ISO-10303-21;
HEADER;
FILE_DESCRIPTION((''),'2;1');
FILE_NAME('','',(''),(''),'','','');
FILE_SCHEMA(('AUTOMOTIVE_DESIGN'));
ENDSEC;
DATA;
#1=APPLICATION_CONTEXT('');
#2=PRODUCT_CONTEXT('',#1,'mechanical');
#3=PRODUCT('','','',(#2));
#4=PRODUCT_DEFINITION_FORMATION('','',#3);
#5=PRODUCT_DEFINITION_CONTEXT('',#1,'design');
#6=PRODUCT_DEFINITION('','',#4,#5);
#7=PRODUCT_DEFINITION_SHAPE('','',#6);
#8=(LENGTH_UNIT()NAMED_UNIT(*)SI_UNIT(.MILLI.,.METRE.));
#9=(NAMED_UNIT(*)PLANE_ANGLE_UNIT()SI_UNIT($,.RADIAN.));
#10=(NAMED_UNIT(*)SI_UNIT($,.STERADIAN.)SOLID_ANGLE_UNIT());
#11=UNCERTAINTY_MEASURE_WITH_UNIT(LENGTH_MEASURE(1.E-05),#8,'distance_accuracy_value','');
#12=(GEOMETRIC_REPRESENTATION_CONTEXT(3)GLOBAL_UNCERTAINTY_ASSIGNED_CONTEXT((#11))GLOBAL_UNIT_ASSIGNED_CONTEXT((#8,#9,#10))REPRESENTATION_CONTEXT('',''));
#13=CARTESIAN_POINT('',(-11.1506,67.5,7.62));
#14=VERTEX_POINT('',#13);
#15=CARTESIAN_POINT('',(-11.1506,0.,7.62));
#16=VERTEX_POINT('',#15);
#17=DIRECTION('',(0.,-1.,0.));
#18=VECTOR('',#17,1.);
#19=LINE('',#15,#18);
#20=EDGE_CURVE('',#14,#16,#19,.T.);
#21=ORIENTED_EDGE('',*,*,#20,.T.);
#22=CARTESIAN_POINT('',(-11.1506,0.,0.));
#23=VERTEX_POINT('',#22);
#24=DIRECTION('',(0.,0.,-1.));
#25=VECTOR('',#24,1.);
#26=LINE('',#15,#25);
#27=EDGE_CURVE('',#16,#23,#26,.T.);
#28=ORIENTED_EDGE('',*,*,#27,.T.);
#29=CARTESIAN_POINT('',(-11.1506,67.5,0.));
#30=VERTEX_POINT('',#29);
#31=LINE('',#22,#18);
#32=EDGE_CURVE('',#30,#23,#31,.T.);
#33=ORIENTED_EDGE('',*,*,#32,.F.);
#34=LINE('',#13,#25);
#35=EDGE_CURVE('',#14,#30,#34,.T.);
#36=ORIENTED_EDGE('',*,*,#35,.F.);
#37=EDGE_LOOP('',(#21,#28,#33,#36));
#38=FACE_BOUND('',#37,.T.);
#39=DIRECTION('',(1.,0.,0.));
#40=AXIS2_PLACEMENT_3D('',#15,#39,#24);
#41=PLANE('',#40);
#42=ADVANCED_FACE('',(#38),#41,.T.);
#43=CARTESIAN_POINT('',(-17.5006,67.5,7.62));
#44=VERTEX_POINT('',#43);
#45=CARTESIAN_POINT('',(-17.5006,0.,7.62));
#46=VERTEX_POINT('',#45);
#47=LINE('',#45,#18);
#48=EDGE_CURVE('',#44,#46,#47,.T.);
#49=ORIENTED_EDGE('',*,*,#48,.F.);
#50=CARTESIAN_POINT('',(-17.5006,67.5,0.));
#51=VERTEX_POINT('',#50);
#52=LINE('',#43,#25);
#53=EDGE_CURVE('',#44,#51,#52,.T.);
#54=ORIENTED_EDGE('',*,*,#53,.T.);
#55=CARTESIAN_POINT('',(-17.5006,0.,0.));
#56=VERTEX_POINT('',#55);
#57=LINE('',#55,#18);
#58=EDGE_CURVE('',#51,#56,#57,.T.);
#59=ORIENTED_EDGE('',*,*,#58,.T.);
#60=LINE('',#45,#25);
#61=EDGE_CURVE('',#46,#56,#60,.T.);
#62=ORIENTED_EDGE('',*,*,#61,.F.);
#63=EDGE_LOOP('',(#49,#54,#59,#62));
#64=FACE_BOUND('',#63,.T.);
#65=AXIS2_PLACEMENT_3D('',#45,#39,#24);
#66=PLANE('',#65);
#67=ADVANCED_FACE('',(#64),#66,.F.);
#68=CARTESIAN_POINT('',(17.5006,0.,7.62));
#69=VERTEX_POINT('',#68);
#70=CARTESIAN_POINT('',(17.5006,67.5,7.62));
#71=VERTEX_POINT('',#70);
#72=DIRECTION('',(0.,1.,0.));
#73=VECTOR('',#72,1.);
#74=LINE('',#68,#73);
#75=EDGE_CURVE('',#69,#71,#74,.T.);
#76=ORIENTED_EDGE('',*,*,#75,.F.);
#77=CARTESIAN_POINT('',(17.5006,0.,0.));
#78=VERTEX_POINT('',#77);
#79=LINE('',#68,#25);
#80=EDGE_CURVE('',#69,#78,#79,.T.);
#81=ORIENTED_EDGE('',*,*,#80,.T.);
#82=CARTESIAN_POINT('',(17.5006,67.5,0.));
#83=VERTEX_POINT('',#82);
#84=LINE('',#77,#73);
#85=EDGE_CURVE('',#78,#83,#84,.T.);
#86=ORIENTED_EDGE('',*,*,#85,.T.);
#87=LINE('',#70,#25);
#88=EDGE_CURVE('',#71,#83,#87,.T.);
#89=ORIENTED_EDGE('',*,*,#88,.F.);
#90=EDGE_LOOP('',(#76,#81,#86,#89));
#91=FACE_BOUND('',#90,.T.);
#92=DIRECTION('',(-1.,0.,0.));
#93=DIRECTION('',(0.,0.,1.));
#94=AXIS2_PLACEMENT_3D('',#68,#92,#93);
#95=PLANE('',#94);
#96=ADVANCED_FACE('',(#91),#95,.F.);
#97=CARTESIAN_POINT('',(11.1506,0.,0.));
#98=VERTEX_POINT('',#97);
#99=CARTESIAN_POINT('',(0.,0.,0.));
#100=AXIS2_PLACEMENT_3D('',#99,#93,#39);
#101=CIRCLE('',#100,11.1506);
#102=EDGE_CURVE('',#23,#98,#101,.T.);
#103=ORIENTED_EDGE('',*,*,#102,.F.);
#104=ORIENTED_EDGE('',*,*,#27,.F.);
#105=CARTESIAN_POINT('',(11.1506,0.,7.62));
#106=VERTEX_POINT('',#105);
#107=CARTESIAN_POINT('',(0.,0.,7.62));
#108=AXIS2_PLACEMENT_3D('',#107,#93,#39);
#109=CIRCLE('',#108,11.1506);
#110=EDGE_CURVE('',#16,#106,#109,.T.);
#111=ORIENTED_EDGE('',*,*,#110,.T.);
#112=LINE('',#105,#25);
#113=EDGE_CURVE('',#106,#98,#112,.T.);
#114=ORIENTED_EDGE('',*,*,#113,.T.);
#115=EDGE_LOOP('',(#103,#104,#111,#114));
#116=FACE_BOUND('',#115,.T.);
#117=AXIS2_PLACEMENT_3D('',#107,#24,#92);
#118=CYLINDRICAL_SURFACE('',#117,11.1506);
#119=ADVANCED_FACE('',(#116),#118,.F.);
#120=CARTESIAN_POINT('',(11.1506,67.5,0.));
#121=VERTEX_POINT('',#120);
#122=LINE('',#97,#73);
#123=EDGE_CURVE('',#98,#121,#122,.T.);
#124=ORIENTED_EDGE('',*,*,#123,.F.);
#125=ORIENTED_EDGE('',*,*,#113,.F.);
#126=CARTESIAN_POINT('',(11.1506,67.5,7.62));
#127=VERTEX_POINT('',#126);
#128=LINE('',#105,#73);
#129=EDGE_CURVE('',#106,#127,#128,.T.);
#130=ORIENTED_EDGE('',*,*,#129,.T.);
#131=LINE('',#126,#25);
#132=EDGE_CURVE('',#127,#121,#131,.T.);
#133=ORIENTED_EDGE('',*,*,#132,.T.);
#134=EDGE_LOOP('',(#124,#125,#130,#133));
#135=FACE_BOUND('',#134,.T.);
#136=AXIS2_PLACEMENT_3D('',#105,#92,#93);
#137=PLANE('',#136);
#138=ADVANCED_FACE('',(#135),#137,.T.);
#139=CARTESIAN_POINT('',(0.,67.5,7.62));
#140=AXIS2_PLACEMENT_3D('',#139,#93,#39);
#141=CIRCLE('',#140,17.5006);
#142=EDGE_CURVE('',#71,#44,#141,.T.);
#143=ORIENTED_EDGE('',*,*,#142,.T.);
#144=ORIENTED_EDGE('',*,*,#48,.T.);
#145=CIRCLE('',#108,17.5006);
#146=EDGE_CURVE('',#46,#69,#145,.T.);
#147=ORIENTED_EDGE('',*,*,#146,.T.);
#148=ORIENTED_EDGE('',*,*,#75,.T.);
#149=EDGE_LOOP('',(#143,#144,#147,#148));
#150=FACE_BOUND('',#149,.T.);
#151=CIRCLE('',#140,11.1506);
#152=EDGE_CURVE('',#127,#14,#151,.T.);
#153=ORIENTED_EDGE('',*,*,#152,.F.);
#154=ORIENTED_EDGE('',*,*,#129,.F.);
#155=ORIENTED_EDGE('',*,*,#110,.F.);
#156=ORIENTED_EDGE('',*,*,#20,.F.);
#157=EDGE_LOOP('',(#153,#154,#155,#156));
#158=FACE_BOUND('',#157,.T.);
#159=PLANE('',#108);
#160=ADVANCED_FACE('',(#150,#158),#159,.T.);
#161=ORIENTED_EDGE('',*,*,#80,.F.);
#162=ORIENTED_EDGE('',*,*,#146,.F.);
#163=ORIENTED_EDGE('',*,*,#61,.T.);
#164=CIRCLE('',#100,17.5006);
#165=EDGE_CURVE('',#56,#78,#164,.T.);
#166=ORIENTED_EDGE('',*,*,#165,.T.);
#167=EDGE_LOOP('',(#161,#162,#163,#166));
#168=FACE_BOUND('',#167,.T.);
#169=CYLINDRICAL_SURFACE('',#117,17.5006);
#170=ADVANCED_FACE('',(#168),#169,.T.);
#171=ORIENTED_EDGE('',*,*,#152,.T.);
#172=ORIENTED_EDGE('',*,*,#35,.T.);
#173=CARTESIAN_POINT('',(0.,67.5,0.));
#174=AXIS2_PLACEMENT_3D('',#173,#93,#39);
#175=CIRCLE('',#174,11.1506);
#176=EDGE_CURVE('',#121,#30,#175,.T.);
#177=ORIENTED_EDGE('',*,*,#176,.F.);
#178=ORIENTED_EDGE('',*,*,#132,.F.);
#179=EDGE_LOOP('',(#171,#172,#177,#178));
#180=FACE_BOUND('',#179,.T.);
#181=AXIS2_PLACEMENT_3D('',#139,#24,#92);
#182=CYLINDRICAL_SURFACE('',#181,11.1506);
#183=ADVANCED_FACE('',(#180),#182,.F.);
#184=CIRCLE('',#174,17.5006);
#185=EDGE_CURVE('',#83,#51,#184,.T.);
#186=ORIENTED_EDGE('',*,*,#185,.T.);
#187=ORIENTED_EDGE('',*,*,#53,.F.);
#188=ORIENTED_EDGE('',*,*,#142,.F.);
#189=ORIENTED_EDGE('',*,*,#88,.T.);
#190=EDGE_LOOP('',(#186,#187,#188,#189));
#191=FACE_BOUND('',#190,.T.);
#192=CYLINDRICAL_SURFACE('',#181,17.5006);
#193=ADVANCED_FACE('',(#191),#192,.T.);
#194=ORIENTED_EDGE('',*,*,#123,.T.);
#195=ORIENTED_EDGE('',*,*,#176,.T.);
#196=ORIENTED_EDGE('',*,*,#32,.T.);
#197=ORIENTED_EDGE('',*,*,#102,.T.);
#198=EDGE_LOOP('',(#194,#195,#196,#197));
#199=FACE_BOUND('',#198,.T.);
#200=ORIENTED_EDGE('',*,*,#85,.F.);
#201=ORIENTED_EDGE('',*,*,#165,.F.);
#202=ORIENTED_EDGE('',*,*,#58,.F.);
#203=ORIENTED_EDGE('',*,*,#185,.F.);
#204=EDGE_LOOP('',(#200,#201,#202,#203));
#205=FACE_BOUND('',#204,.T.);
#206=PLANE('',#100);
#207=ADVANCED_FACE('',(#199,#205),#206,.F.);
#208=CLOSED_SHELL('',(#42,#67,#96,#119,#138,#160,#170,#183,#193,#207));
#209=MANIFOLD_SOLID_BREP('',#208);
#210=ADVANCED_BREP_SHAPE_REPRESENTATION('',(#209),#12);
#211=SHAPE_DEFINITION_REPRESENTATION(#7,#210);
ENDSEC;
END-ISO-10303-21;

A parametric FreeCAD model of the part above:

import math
import FreeCAD as App
import Part
import Sketcher
from FreeCAD import Vector
Q = App.Units.Quantity

doc = App.newDocument("Part")
body = doc.addObject("PartDesign::Body", "Body")

# Sketch on XY plane
sketch1 = doc.addObject("Sketcher::SketchObject", "Sketch")
body.addObject(sketch1)
sketch1.AttachmentSupport = (doc.XY_Plane, [""])
sketch1.MapMode = "FlatFace"
sketch1.addGeometry(Part.LineSegment(Vector(-18, 68, 0), Vector(-18, 0, 0)), False)
sketch1.addGeometry(Part.ArcOfCircle(Part.Circle(Vector(0, 0, 0), Vector(0, 0, 1), 18), math.radians(180), math.radians(360)), False)
sketch1.addGeometry(Part.LineSegment(Vector(18, 0, 0), Vector(18, 68, 0)), False)
sketch1.addGeometry(Part.ArcOfCircle(Part.Circle(Vector(0, 68, 0), Vector(0, 0, 1), 18), math.radians(0), math.radians(180)), False)
sketch1.addGeometry(Part.LineSegment(Vector(-11, 0, 0), Vector(-11, 68, 0)), False)
sketch1.addGeometry(Part.ArcOfCircle(Part.Circle(Vector(0, 68, 0), Vector(0, 0, 1), 11), math.radians(0), math.radians(180)), False)
sketch1.addGeometry(Part.LineSegment(Vector(11, 68, 0), Vector(11, 0, 0)), False)
sketch1.addGeometry(Part.ArcOfCircle(Part.Circle(Vector(0, 0, 0), Vector(0, 0, 1), 11), math.radians(180), math.radians(360)), False)
sketch1.addConstraint(Sketcher.Constraint("Tangent", 0, 2, 1, 1))
sketch1.addConstraint(Sketcher.Constraint("Tangent", 1, 2, 2, 1))
sketch1.addConstraint(Sketcher.Constraint("Tangent", 2, 2, 3, 1))
sketch1.addConstraint(Sketcher.Constraint("Tangent", 3, 2, 0, 1))
sketch1.addConstraint(Sketcher.Constraint("Tangent", 4, 2, 5, 2))
sketch1.addConstraint(Sketcher.Constraint("Tangent", 5, 1, 6, 1))
sketch1.addConstraint(Sketcher.Constraint("Tangent", 6, 2, 7, 2))
sketch1.addConstraint(Sketcher.Constraint("Tangent", 7, 1, 4, 1))
sketch1.addConstraint(Sketcher.Constraint("Vertical", 0))
sketch1.addConstraint(Sketcher.Constraint("Vertical", 2))
sketch1.addConstraint(Sketcher.Constraint("Vertical", 4))
sketch1.addConstraint(Sketcher.Constraint("Vertical", 6))
sketch1.addConstraint(Sketcher.Constraint("Coincident", 1, 3, -1, 1))
sketch1.addConstraint(Sketcher.Constraint("Coincident", 7, 3, -1, 1))
sketch1.addConstraint(Sketcher.Constraint("Horizontal", 5, 3, 2, 2))
sketch1.addConstraint(Sketcher.Constraint("Radius", 1, Q("0.689 in")))
sketch1.addConstraint(Sketcher.Constraint("Radius", 5, Q("0.439 in")))
sketch1.addConstraint(Sketcher.Constraint("DistanceY", 0, 2, 0, 1, 67.5))
pad1 = doc.addObject("PartDesign::Pad", "Pad")
body.addObject(pad1)
pad1.Profile = sketch1
pad1.Length = Q("0.3 in")

doc.recompute()
